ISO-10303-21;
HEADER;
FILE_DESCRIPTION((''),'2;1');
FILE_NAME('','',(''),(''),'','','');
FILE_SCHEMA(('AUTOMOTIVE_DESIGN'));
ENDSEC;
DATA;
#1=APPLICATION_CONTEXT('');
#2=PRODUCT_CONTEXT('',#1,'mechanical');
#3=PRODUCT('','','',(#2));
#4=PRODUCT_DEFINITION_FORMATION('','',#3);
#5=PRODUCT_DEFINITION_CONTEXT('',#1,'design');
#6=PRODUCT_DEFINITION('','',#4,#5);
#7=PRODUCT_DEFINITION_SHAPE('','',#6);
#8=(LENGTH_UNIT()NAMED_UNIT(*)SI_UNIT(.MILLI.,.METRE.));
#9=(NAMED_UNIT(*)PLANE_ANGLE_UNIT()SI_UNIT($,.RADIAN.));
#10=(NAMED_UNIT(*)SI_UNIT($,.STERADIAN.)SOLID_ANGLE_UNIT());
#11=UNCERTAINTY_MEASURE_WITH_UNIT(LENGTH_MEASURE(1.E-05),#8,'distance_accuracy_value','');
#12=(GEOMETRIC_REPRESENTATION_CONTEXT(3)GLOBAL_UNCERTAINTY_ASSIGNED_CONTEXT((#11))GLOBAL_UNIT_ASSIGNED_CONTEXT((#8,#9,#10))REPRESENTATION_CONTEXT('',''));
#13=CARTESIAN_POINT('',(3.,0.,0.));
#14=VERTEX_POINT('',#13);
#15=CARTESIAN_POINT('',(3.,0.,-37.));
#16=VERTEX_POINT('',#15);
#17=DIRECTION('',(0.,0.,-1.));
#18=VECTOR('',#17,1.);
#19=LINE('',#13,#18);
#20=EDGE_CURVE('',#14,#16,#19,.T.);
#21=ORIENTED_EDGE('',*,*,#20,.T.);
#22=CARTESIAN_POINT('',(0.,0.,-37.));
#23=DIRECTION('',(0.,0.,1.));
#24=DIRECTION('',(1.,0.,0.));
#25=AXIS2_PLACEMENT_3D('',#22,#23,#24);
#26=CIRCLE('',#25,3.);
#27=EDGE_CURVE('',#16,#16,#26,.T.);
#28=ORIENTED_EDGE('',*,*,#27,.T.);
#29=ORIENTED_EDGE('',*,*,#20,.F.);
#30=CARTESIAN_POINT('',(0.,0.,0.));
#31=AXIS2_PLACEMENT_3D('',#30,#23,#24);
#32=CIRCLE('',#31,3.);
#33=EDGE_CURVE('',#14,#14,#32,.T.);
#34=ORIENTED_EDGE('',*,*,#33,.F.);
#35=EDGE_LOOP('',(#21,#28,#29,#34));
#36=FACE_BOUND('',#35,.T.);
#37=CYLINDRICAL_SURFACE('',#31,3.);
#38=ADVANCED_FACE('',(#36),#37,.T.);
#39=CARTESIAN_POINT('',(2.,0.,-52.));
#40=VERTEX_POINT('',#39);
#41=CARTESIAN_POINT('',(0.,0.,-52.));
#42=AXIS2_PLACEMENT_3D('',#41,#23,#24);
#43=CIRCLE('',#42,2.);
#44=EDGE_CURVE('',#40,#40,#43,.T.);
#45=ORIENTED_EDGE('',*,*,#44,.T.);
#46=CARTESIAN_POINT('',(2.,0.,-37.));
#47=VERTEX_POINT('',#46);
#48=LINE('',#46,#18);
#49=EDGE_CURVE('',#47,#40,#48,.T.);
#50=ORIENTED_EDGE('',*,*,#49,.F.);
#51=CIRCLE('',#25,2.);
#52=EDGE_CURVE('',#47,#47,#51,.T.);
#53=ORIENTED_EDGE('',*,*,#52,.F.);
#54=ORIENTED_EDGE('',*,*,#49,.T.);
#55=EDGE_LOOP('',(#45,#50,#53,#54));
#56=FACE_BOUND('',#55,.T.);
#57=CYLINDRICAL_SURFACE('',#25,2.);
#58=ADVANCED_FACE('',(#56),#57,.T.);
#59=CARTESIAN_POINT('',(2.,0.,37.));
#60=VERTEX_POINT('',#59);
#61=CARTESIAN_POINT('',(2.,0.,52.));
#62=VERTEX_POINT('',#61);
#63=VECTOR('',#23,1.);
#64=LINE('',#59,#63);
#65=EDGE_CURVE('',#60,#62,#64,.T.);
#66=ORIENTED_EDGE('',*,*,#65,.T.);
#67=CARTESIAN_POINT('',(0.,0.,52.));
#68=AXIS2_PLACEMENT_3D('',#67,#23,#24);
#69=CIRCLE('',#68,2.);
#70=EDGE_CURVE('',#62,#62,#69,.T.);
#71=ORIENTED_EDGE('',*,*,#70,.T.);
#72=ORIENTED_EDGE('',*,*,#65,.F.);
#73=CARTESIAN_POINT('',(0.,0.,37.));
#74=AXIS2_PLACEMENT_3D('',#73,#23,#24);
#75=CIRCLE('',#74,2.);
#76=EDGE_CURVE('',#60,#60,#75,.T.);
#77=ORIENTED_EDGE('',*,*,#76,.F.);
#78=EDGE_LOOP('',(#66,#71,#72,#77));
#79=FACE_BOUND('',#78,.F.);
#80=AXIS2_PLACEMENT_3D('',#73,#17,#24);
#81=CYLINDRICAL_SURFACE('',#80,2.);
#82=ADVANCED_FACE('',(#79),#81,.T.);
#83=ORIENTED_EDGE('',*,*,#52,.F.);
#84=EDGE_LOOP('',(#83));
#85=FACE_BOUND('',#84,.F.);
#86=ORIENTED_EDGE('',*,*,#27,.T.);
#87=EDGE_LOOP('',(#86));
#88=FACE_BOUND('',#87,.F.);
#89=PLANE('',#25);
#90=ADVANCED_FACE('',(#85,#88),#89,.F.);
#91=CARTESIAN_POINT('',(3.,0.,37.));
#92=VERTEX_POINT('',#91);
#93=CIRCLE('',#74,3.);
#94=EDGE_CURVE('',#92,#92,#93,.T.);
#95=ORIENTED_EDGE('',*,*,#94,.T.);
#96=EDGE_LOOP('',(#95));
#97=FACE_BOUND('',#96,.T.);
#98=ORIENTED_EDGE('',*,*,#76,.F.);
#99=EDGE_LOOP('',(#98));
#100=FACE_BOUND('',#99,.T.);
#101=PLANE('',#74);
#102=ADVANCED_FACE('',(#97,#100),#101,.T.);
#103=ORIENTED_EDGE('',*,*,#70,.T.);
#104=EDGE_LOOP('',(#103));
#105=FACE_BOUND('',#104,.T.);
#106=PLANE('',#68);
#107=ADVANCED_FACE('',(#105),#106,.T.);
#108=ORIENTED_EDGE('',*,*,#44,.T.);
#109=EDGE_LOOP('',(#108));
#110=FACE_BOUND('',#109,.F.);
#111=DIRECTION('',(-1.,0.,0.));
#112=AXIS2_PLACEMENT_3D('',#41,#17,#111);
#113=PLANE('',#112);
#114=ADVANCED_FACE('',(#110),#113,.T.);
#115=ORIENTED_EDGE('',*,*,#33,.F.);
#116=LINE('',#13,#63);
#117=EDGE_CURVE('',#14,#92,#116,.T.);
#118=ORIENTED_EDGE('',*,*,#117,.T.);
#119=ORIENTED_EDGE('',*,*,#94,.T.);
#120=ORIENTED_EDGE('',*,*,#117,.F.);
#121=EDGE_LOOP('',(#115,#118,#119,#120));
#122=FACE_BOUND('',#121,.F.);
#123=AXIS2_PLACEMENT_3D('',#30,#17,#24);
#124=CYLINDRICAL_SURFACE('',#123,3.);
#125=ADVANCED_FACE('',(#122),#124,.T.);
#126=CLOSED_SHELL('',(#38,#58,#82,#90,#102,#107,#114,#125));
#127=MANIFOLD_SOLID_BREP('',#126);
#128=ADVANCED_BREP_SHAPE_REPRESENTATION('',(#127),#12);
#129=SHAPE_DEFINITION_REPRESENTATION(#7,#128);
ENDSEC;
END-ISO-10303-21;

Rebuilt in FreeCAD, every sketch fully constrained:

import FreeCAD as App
import Part
import Sketcher
from FreeCAD import Vector
Q = App.Units.Quantity

doc = App.newDocument("Part")
params = doc.addObject("Spreadsheet::Sheet", "Params")
for row, (alias, value) in enumerate([
    ("sketch1_diameter", "6 mm"),
    ("pad1_length", "74 mm"),
    ("sketch2_diameter", "4 mm"),
    ("pad2_length", "15 mm"),
], start=1):
    params.set(f"A{row}", alias)
    params.set(f"B{row}", "=" + value)
    params.setAlias(f"B{row}", alias)

body = doc.addObject("PartDesign::Body", "Body")

# Sketch on XY plane
sketch1 = body.newObject("Sketcher::SketchObject", "Sketch")
sketch1.AttachmentSupport = (doc.getObject("XY_Plane"), [""])
sketch1.MapMode = "FlatFace"
sketch1.addGeometry(Part.Circle(Vector(0, 0, 0), Vector(0, 0, 1), 3), False)
sketch1.addConstraint([
    Sketcher.Constraint("Coincident", 0, 3, -1, 1),
    Sketcher.Constraint("Diameter", 0, Q("6 mm")),
])
sketch1.setExpression("Constraints[1]", "Params.sketch1_diameter")
pad1 = body.newObject("PartDesign::Pad", "Pad")
pad1.Profile = sketch1
pad1.setExpression("Length", "Params.pad1_length")
pad1.Midplane = True

# Sketch on XY plane
sketch2 = body.newObject("Sketcher::SketchObject", "Sketch001")
sketch2.AttachmentSupport = (doc.getObject("XY_Plane"), [""])
sketch2.MapMode = "FlatFace"
sketch2.AttachmentOffset = App.Placement(Vector(0, 0, 37), App.Rotation())
sketch2.addGeometry(Part.Circle(Vector(0, 0, 0), Vector(0, 0, 1), 2), False)
sketch2.addConstraint([
    Sketcher.Constraint("Coincident", 0, 3, -1, 1),
    Sketcher.Constraint("Diameter", 0, Q("4 mm")),
])
sketch2.setExpression("Constraints[1]", "Params.sketch2_diameter")
pad2 = body.newObject("PartDesign::Pad", "Pad001")
pad2.Profile = sketch2
pad2.setExpression("Length", "Params.pad2_length")
doc.recompute()

mirrored = body.newObject("PartDesign::Mirrored", "Mirrored")
mirrored.Originals = [pad2]
mirrored.MirrorPlane = (doc.getObject("XY_Plane"), [""])
body.Tip = mirrored

doc.recompute()
